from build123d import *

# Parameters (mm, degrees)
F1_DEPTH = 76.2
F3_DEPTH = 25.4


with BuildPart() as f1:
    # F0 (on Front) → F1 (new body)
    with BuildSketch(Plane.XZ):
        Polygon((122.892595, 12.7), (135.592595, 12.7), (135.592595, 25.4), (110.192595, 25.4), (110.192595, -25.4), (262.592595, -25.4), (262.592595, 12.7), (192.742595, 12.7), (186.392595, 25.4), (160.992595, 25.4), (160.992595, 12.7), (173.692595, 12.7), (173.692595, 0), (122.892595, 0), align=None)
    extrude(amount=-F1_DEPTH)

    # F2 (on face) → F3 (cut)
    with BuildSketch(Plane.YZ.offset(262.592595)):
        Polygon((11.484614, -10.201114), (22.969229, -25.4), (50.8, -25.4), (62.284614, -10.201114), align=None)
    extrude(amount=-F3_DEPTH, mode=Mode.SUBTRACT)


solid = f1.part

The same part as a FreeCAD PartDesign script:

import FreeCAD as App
import Part
import Sketcher

V = App.Vector
Q = App.Units.Quantity

doc = App.newDocument("Part")
params = doc.addObject("Spreadsheet::Sheet", "Params")
for row, (alias, value) in enumerate([
    ("sketch1_width", "1 in"),
    ("sketch1_width2", "6 in"),
    ("sketch1_width3", "2 in"),
    ("sketch1_width4", "0.5 in"),
    ("sketch1_width5", "2.75 in"),
    ("pad1_length", "3 in"),
    ("sketch2_width", "2 in"),
    ("sketch2_length", "0.75 in"),
    ("pocket1_length", "1 in"),
], start=1):
    params.set(f"A{row}", alias)
    params.set(f"B{row}", "=" + value)
    params.setAlias(f"B{row}", alias)

body = doc.addObject("PartDesign::Body", "Body")

# Sketch on XZ plane
sketch1 = doc.addObject("Sketcher::SketchObject", "Sketch")
body.addObject(sketch1)
sketch1.AttachmentSupport = (doc.XZ_Plane, [""])
sketch1.MapMode = "FlatFace"
sketch1.addGeometry([
    Part.LineSegment(V(123, 13, 0), V(136, 13, 0)),  # 0
    Part.LineSegment(V(136, 13, 0), V(136, 25, 0)),  # 1
    Part.LineSegment(V(136, 25, 0), V(110, 25, 0)),  # 2
    Part.LineSegment(V(110, 25, 0), V(110, -25, 0)),  # 3
    Part.LineSegment(V(110, -25, 0), V(263, -25, 0)),  # 4
    Part.LineSegment(V(263, -25, 0), V(263, 13, 0)),  # 5
    Part.LineSegment(V(263, 13, 0), V(193, 13, 0)),  # 6
    Part.LineSegment(V(193, 13, 0), V(186, 25, 0)),  # 7
    Part.LineSegment(V(186, 25, 0), V(161, 25, 0)),  # 8
    Part.LineSegment(V(161, 25, 0), V(161, 13, 0)),  # 9
    Part.LineSegment(V(161, 13, 0), V(174, 13, 0)),  # 10
    Part.LineSegment(V(174, 13, 0), V(174, 0, 0)),  # 11
    Part.LineSegment(V(174, 0, 0), V(123, 0, 0)),  # 12
    Part.LineSegment(V(123, 0, 0), V(123, 13, 0)),  # 13
], False)
sketch1.addConstraint([
    Sketcher.Constraint("Coincident", 0, 2, 1, 1),
    Sketcher.Constraint("Coincident", 1, 2, 2, 1),
    Sketcher.Constraint("Coincident", 2, 2, 3, 1),
    Sketcher.Constraint("Coincident", 3, 2, 4, 1),
    Sketcher.Constraint("Coincident", 4, 2, 5, 1),
    Sketcher.Constraint("Coincident", 5, 2, 6, 1),
    Sketcher.Constraint("Coincident", 6, 2, 7, 1),
    Sketcher.Constraint("Coincident", 7, 2, 8, 1),
    Sketcher.Constraint("Coincident", 8, 2, 9, 1),
    Sketcher.Constraint("Coincident", 9, 2, 10, 1),
    Sketcher.Constraint("Coincident", 10, 2, 11, 1),
    Sketcher.Constraint("Coincident", 11, 2, 12, 1),
    Sketcher.Constraint("Coincident", 12, 2, 13, 1),
    Sketcher.Constraint("Coincident", 13, 2, 0, 1),
    Sketcher.Constraint("Horizontal", 0),
    Sketcher.Constraint("Vertical", 1),
    Sketcher.Constraint("Horizontal", 2),
    Sketcher.Constraint("Vertical", 3),
    Sketcher.Constraint("Horizontal", 4),
    Sketcher.Constraint("Vertical", 5),
    Sketcher.Constraint("Horizontal", 6),
    Sketcher.Constraint("Horizontal", 8),
    Sketcher.Constraint("Vertical", 9),
    Sketcher.Constraint("Horizontal", 10),
    Sketcher.Constraint("Vertical", 11),
    Sketcher.Constraint("Horizontal", 12),
    Sketcher.Constraint("Vertical", 13),
    Sketcher.Constraint("PointOnObject", 11, 2, -1),
    Sketcher.Constraint("Horizontal", 0, 2, 5, 2),
    Sketcher.Constraint("Horizontal", 2, 2, 7, 2),
    Sketcher.Constraint("Horizontal", 6, 2, 9, 2),
    Sketcher.Constraint("Equal", 2, 8),
    Sketcher.Constraint("Equal", 0, 10),
    Sketcher.Constraint("Equal", 10, 1),
    Sketcher.Constraint("Equal", 12, 3),
    Sketcher.Constraint("Equal", 9, 11),
    Sketcher.Constraint("DistanceX", 2, 2, 2, 1, Q("1 in")),
    Sketcher.Constraint("DistanceX", 4, 1, 4, 2, Q("6 in")),
    Sketcher.Constraint("DistanceX", 12, 2, 12, 1, Q("2 in")),
    Sketcher.Constraint("DistanceX", 0, 1, 0, 2, Q("0.5 in")),
    Sketcher.Constraint("DistanceX", 6, 2, 6, 1, Q("2.75 in")),
    Sketcher.Constraint("DistanceX", -1, 1, 0, 2, Q("135.592595 mm")),
])
sketch1.setExpression("Constraints[36]", "Params.sketch1_width")
sketch1.setExpression("Constraints[37]", "Params.sketch1_width2")
sketch1.setExpression("Constraints[38]", "Params.sketch1_width3")
sketch1.setExpression("Constraints[39]", "Params.sketch1_width4")
sketch1.setExpression("Constraints[40]", "Params.sketch1_width5")
pad1 = doc.addObject("PartDesign::Pad", "Pad")
body.addObject(pad1)
pad1.Profile = sketch1
pad1.setExpression("Length", "Params.pad1_length")
pad1.Reversed = True

# Sketch on YZ plane
sketch2 = doc.addObject("Sketcher::SketchObject", "Sketch001")
body.addObject(sketch2)
sketch2.AttachmentSupport = (doc.YZ_Plane, [""])
sketch2.MapMode = "FlatFace"
sketch2.AttachmentOffset = App.Placement(V(0, 0, 262.592595), App.Rotation())
sketch2.addGeometry([
    Part.LineSegment(V(11, -10, 0), V(23, -25, 0)),
    Part.LineSegment(V(23, -25, 0), V(51, -25, 0)),
    Part.LineSegment(V(51, -25, 0), V(62, -10, 0)),
    Part.LineSegment(V(62, -10, 0), V(11, -10, 0)),
], False)
sketch2.addConstraint([
    Sketcher.Constraint("Coincident", 0, 2, 1, 1),
    Sketcher.Constraint("Coincident", 1, 2, 2, 1),
    Sketcher.Constraint("Coincident", 2, 2, 3, 1),
    Sketcher.Constraint("Coincident", 3, 2, 0, 1),
    Sketcher.Constraint("Horizontal", 1),
    Sketcher.Constraint("Horizontal", 3),
    Sketcher.Constraint("Equal", 0, 2),
    Sketcher.Constraint("DistanceX", 3, 2, 3, 1, Q("2 in")),
    Sketcher.Constraint("DistanceY", 0, 2, -1, 1, Q("1 in")),
    Sketcher.Constraint("DistanceX", -1, 1, 1, 2, Q("2 in")),
    Sketcher.Constraint("Distance", 0, Q("0.75 in")),
    Sketcher.Constraint("DistanceX", 1, 1, 1, 2, Q("27.830771 mm")),
])
sketch2.setExpression("Constraints[7]", "Params.sketch2_width")
sketch2.setExpression("Constraints[10]", "Params.sketch2_length")
pocket1 = doc.addObject("PartDesign::Pocket", "Pocket")
body.addObject(pocket1)
pocket1.Profile = sketch2
pocket1.setExpression("Length", "Params.pocket1_length")

doc.recompute()
